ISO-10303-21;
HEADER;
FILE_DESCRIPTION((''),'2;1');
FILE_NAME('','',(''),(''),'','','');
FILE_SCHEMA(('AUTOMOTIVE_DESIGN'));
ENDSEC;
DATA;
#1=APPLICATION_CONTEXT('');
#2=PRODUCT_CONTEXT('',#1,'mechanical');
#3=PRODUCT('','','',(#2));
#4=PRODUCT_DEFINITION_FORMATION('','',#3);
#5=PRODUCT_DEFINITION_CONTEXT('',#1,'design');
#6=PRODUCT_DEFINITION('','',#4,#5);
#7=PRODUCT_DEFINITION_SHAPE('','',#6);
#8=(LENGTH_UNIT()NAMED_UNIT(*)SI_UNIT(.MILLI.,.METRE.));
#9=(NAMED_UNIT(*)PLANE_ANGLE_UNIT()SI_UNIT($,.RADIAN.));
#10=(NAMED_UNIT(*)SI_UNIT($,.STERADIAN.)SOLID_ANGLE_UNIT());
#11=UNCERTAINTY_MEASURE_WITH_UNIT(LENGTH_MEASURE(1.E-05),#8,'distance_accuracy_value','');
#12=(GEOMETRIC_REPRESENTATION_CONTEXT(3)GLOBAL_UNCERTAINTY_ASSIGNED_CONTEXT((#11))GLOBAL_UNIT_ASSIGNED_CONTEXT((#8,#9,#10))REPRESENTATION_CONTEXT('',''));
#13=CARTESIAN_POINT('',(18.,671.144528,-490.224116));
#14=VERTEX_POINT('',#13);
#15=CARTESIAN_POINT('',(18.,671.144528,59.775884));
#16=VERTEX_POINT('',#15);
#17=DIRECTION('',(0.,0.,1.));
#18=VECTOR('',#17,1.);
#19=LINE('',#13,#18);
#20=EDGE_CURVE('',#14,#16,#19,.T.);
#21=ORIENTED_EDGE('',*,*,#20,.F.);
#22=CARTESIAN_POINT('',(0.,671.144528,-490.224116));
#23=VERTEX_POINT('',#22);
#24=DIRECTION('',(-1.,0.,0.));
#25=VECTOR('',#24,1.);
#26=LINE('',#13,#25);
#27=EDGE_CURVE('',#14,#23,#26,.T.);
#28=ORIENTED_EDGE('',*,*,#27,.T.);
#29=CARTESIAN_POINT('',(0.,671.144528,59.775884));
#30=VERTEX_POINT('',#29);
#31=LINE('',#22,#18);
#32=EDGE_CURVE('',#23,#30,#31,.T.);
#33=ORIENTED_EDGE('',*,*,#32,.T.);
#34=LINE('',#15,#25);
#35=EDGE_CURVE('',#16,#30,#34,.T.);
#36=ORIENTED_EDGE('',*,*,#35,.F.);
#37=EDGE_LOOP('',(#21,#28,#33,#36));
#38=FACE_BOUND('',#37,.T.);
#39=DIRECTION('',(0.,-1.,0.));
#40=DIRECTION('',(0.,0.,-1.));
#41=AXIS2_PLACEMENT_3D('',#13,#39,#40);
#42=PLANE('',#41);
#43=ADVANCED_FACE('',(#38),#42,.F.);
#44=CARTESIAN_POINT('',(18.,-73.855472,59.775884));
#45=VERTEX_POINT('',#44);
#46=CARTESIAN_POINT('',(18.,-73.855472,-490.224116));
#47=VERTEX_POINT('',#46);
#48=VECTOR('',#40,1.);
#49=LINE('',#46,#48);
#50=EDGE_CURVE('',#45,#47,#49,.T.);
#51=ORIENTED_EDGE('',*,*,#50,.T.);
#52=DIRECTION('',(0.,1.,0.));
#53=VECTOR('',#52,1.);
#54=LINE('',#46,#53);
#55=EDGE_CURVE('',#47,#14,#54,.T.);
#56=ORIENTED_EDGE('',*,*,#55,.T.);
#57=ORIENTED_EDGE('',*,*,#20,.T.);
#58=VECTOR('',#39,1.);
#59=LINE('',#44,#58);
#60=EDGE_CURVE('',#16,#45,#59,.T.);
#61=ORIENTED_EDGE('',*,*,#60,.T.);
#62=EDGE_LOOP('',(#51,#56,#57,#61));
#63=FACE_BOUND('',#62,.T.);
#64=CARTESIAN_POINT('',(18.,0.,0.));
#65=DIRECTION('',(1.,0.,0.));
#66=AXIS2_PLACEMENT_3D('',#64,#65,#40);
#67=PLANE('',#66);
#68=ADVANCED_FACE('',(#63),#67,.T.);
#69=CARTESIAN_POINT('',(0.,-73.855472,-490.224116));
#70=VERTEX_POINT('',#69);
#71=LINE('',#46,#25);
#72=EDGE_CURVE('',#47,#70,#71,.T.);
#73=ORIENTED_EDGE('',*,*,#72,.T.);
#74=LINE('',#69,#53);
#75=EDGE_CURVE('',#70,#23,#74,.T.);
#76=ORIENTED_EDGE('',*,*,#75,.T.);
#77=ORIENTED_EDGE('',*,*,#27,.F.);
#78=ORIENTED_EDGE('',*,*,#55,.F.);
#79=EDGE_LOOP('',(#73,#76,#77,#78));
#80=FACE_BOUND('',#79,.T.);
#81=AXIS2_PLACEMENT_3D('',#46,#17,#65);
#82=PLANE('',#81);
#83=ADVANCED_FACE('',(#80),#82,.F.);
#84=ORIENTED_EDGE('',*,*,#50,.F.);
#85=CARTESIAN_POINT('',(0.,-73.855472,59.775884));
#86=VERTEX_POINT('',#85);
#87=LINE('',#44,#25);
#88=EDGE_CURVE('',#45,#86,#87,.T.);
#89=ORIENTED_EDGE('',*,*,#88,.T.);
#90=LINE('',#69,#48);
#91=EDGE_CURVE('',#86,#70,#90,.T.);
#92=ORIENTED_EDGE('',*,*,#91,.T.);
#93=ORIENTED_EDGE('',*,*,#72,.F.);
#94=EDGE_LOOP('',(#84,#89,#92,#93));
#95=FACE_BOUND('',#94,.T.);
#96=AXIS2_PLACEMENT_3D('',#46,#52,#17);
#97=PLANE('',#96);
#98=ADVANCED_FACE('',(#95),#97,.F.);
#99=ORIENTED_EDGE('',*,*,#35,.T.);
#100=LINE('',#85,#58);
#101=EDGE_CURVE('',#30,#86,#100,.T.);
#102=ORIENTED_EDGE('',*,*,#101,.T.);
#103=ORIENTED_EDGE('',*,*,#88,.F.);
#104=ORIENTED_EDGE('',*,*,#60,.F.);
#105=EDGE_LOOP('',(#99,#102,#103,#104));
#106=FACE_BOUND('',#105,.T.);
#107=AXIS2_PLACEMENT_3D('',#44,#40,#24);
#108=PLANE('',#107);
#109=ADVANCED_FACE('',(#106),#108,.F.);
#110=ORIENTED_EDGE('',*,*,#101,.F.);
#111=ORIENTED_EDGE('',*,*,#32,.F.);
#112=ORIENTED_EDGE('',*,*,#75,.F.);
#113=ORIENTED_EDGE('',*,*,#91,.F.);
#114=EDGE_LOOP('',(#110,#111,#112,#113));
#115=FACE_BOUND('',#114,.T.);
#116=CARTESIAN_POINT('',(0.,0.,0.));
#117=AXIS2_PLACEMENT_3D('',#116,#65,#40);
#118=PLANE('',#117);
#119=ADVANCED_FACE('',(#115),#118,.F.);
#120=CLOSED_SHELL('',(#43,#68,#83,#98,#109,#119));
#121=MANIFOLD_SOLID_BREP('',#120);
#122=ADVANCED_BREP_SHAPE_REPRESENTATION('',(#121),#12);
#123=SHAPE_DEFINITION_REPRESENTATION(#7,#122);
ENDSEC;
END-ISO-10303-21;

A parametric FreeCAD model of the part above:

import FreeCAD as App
import Part
import Sketcher
from FreeCAD import Vector
Q = App.Units.Quantity

doc = App.newDocument("Part")
body = doc.addObject("PartDesign::Body", "Body")

# Sketch on YZ plane
sketch1 = body.newObject("Sketcher::SketchObject", "Sketch")
sketch1.AttachmentSupport = (doc.getObject("YZ_Plane"), [""])
sketch1.MapMode = "FlatFace"
sketch1.addGeometry([
    Part.LineSegment(Vector(671.144528, 59.775884, 0), Vector(-73.855472, 59.775884, 0)),
    Part.LineSegment(Vector(-73.855472, 59.775884, 0), Vector(-73.855472, -490.224116, 0)),
    Part.LineSegment(Vector(-73.855472, -490.224116, 0), Vector(671.144528, -490.224116, 0)),
    Part.LineSegment(Vector(671.144528, -490.224116, 0), Vector(671.144528, 59.775884, 0)),
], False)
sketch1.addConstraint([
    Sketcher.Constraint("Coincident", 0, 2, 1, 1),
    Sketcher.Constraint("Coincident", 1, 2, 2, 1),
    Sketcher.Constraint("Coincident", 2, 2, 3, 1),
    Sketcher.Constraint("Coincident", 3, 2, 0, 1),
    Sketcher.Constraint("Horizontal", 0),
    Sketcher.Constraint("Vertical", 1),
    Sketcher.Constraint("Horizontal", 2),
    Sketcher.Constraint("Vertical", 3),
    Sketcher.Constraint("DistanceX", 0, 2, 0, 1, Q("745 mm")),
    Sketcher.Constraint("DistanceY", 1, 2, 1, 1, Q("550 mm")),
    Sketcher.Constraint("DistanceX", 0, 2, -1, 1, Q("73.855472 mm")),
    Sketcher.Constraint("DistanceY", -1, 1, 0, 2, Q("59.775884 mm")),
])
pad1 = body.newObject("PartDesign::Pad", "Pad")
pad1.Profile = sketch1
pad1.Length = 18

doc.recompute()
